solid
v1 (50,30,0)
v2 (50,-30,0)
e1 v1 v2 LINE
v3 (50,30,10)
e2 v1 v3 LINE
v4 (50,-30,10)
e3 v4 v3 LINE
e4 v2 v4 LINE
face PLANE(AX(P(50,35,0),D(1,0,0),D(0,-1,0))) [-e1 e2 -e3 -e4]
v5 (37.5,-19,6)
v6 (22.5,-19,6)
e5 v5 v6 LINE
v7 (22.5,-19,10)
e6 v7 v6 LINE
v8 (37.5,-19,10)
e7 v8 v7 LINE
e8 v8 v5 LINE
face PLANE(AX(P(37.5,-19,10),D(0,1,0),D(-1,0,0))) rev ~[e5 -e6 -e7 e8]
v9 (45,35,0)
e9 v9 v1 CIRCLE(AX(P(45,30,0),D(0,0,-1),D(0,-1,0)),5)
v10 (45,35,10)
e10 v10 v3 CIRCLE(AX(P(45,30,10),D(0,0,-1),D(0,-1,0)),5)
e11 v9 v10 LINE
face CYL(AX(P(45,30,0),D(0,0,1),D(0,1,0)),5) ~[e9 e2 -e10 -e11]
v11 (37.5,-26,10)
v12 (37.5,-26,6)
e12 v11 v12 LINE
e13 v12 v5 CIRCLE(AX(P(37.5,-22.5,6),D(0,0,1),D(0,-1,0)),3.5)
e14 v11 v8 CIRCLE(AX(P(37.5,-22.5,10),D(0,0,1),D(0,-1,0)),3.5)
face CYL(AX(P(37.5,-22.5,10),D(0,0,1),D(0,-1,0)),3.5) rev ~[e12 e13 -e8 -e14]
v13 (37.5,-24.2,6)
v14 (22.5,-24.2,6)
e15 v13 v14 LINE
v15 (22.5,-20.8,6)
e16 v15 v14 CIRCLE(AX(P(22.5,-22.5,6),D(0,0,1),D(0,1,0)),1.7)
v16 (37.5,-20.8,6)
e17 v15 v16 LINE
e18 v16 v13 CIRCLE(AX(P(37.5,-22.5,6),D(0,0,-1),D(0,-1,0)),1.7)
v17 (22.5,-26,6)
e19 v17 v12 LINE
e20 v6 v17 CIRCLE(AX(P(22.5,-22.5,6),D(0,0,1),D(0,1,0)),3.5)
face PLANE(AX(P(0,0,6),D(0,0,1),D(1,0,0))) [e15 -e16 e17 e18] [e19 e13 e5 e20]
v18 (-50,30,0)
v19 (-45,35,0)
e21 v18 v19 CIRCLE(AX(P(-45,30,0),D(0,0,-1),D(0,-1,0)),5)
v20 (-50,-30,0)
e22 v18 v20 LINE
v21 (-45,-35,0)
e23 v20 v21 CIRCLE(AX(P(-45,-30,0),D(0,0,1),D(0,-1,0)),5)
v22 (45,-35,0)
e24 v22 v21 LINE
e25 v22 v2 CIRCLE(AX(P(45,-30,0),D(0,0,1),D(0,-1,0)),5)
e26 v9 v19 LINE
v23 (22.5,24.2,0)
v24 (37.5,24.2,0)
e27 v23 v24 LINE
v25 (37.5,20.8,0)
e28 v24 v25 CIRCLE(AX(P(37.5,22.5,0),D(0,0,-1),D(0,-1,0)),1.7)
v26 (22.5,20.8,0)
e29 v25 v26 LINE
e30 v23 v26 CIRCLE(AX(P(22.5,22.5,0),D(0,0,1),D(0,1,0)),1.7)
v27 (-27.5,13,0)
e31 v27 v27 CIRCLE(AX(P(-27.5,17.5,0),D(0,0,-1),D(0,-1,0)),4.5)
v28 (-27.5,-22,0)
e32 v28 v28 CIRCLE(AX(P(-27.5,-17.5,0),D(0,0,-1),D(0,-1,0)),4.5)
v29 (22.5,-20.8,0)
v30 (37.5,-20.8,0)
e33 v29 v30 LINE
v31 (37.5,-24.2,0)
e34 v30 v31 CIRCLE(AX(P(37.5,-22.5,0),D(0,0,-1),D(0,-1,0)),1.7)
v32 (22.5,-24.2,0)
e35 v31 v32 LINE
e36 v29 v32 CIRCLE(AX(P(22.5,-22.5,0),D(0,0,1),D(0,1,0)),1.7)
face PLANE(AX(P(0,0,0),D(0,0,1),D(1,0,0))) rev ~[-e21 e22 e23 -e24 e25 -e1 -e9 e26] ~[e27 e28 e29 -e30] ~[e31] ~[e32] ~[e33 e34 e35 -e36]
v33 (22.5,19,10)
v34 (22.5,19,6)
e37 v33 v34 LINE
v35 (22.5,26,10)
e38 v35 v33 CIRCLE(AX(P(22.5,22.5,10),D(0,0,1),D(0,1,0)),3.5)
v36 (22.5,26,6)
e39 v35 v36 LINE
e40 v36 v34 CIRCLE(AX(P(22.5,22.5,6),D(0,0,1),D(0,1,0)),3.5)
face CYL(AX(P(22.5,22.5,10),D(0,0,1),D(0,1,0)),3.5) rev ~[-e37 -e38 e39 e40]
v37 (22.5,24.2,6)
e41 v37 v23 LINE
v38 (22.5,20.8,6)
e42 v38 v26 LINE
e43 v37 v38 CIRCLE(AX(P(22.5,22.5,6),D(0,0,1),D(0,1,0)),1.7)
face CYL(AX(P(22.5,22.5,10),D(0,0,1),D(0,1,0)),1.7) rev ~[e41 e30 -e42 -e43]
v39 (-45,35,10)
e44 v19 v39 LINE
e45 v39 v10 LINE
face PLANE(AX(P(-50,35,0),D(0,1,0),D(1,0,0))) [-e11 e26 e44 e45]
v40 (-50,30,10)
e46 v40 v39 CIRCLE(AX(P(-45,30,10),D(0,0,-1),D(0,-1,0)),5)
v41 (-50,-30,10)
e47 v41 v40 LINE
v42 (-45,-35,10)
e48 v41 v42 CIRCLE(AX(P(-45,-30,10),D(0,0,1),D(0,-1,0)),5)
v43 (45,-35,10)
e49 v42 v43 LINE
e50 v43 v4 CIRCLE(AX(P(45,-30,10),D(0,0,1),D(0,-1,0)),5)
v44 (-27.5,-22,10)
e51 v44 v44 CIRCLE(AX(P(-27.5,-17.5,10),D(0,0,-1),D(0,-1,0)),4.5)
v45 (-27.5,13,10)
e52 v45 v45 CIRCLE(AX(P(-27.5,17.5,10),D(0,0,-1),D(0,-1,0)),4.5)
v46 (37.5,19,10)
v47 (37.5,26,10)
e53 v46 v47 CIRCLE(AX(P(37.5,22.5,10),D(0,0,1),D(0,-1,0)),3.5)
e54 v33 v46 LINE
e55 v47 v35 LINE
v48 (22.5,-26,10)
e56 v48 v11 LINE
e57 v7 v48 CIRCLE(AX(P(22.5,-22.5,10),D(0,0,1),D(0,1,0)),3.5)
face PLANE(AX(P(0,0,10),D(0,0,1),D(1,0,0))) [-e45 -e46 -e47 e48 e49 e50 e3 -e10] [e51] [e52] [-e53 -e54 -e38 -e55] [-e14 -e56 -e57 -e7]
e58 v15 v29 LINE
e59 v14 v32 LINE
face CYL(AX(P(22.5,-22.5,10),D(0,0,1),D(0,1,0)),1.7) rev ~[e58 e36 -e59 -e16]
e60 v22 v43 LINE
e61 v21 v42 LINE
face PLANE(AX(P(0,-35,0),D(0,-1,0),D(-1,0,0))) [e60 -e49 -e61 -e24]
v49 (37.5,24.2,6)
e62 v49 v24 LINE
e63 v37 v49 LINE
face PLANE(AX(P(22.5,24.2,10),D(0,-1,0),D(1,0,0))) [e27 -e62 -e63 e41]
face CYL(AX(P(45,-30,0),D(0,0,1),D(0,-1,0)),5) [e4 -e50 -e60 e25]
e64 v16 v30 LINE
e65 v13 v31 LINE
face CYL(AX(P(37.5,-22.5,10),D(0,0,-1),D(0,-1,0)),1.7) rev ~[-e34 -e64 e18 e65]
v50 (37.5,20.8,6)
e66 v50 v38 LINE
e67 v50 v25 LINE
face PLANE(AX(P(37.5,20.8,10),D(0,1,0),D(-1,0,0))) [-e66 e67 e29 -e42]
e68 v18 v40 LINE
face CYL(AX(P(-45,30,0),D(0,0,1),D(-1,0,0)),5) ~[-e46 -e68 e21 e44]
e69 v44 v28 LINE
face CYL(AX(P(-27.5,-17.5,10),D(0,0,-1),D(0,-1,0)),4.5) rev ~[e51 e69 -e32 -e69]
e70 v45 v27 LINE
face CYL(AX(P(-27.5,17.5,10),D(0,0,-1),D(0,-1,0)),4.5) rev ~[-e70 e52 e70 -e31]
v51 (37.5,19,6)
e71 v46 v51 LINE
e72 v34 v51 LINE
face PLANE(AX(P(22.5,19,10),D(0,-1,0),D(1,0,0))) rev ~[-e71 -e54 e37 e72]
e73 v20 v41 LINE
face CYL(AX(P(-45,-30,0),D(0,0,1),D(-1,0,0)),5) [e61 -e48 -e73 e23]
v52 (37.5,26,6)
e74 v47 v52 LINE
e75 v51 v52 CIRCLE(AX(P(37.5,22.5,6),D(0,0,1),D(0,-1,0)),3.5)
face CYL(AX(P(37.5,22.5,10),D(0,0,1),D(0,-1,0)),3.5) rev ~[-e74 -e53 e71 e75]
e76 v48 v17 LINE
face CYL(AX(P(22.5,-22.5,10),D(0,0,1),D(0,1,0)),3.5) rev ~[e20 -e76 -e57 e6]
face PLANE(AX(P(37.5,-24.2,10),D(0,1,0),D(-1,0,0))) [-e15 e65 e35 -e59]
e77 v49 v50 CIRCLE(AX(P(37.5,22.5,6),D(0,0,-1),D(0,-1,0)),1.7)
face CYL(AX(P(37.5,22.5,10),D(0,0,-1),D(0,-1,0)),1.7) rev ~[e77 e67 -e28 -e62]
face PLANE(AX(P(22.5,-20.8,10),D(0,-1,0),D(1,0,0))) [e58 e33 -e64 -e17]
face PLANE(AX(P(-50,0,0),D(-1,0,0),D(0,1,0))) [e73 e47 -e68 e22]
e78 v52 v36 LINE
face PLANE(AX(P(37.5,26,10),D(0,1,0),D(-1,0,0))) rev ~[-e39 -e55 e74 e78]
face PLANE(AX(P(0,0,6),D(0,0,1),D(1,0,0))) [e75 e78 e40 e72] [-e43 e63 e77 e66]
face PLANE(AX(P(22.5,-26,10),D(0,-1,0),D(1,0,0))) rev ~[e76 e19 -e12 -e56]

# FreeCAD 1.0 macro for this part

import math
import FreeCAD as App
import Part
import Sketcher


def edges_at(feature, points):
    """Names of the edges that pass closest to the given points."""
    edges = feature.Shape.Edges
    near = lambda p: min(range(len(edges)), key=lambda i: edges[i].distToShape(Part.Vertex(*p))[0])
    return sorted({f"Edge{near(p) + 1}" for p in points})

doc = App.newDocument("Part")
body = doc.addObject("PartDesign::Body", "Body")

sketch1 = doc.addObject("Sketcher::SketchObject", "Sketch")
body.addObject(sketch1)
sketch1.AttachmentSupport = (doc.XY_Plane, [""])
sketch1.MapMode = "FlatFace"
sketch1.addGeometry([
    Part.LineSegment(App.Vector(-50, 35, 0), App.Vector(-50, -35, 0)),
    Part.LineSegment(App.Vector(-50, -35, 0), App.Vector(50, -35, 0)),
    Part.LineSegment(App.Vector(50, -35, 0), App.Vector(50, 35, 0)),
    Part.LineSegment(App.Vector(50, 35, 0), App.Vector(-50, 35, 0)),
], False)
sketch1.addConstraint([
    Sketcher.Constraint("Coincident", 0, 2, 1, 1),
    Sketcher.Constraint("Coincident", 1, 2, 2, 1),
    Sketcher.Constraint("Coincident", 2, 2, 3, 1),
    Sketcher.Constraint("Coincident", 3, 2, 0, 1),
    Sketcher.Constraint("Vertical", 0),
    Sketcher.Constraint("Horizontal", 1),
    Sketcher.Constraint("Vertical", 2),
    Sketcher.Constraint("Horizontal", 3),
    Sketcher.Constraint("Symmetric", 0, 2, 2, 2, -1, 1),
    Sketcher.Constraint("DistanceX", 1, 1, 1, 2, 100.0),
    Sketcher.Constraint("DistanceY", 0, 2, 0, 1, 70.0),
])
pad1 = doc.addObject("PartDesign::Pad", "Pad")
body.addObject(pad1)
pad1.Profile = sketch1
pad1.Length = 10
doc.recompute()

fillet = doc.addObject("PartDesign::Fillet", "Fillet")
body.addObject(fillet)
fillet.Base = (pad1, edges_at(pad1, [
    (50, 35, 5),
    (50, -35, 5),
    (-50, -35, 5),
    (-50, 35, 5),
]))
fillet.Radius = 5

sketch2 = doc.addObject("Sketcher::SketchObject", "Sketch001")
body.addObject(sketch2)
sketch2.AttachmentSupport = (doc.XY_Plane, [""])
sketch2.MapMode = "FlatFace"
sketch2.AttachmentOffset = App.Placement(App.Vector(0, 0, 10), App.Rotation())
sketch2.addGeometry([
    Part.Circle(App.Vector(-27.5, 17.5, 0), App.Vector(0, 0, 1), 4.5),
    Part.Circle(App.Vector(-27.5, -17.5, 0), App.Vector(0, 0, 1), 4.5),
], False)
sketch2.addConstraint([
    Sketcher.Constraint("Equal", 0, 1),
    Sketcher.Constraint("Symmetric", 0, 3, 1, 3, -1),
    Sketcher.Constraint("Diameter", 0, 9.0),
    Sketcher.Constraint("DistanceY", 1, 3, 0, 3, 35.0),
    Sketcher.Constraint("DistanceX", 0, 3, -1, 1, 27.5),
])
doc.recompute()
hole = doc.addObject("PartDesign::Hole", "Hole")
body.addObject(hole)
hole.Profile = sketch2
hole.ThreadType = "None"
hole.Diameter = 9
hole.DepthType = "ThroughAll"

sketch3 = doc.addObject("Sketcher::SketchObject", "Sketch002")
body.addObject(sketch3)
sketch3.AttachmentSupport = (doc.XY_Plane, [""])
sketch3.MapMode = "FlatFace"
sketch3.AttachmentOffset = App.Placement(App.Vector(0, 0, 10), App.Rotation())
sketch3.addGeometry([
    Part.Circle(App.Vector(37.5, 22.5, 0), App.Vector(0, 0, 1), 1.7),
    Part.Circle(App.Vector(37.5, -22.5, 0), App.Vector(0, 0, 1), 1.7),
], False)
sketch3.addConstraint([
    Sketcher.Constraint("Equal", 0, 1),
    Sketcher.Constraint("Symmetric", 0, 3, 1, 3, -1),
    Sketcher.Constraint("Diameter", 0, 3.4),
    Sketcher.Constraint("DistanceY", 1, 3, 0, 3, 45.0),
    Sketcher.Constraint("DistanceX", -1, 1, 0, 3, 37.5),
])
doc.recompute()
hole2 = doc.addObject("PartDesign::Hole", "Hole001")
body.addObject(hole2)
hole2.Profile = sketch3
hole2.ThreadType = "None"
hole2.Diameter = 3.4
hole2.DepthType = "ThroughAll"

sketch4 = doc.addObject("Sketcher::SketchObject", "Sketch003")
body.addObject(sketch4)
sketch4.AttachmentSupport = (doc.XY_Plane, [""])
sketch4.MapMode = "FlatFace"
sketch4.AttachmentOffset = App.Placement(App.Vector(0, 0, 10), App.Rotation())
sketch4.addGeometry([
    Part.ArcOfCircle(Part.Circle(App.Vector(37.5, 22.5, 0), App.Vector(0, 0, 1), 3.5), math.radians(-90), math.radians(90)),
    Part.LineSegment(App.Vector(37.5, 26, 0), App.Vector(22.5, 26, 0)),
    Part.ArcOfCircle(Part.Circle(App.Vector(22.5, 22.5, 0), App.Vector(0, 0, 1), 3.5), math.radians(90), math.radians(270)),
    Part.LineSegment(App.Vector(22.5, 19, 0), App.Vector(37.5, 19, 0)),
    Part.ArcOfCircle(Part.Circle(App.Vector(37.5, -22.5, 0), App.Vector(0, 0, 1), 3.5), math.radians(-90), math.radians(90)),
    Part.LineSegment(App.Vector(37.5, -19, 0), App.Vector(22.5, -19, 0)),
    Part.ArcOfCircle(Part.Circle(App.Vector(22.5, -22.5, 0), App.Vector(0, 0, 1), 3.5), math.radians(90), math.radians(270)),
    Part.LineSegment(App.Vector(22.5, -26, 0), App.Vector(37.5, -26, 0)),
], False)
sketch4.addConstraint([
    Sketcher.Constraint("Tangent", 0, 2, 1, 1),
    Sketcher.Constraint("Tangent", 1, 2, 2, 1),
    Sketcher.Constraint("Tangent", 2, 2, 3, 1),
    Sketcher.Constraint("Tangent", 3, 2, 0, 1),
    Sketcher.Constraint("Tangent", 4, 2, 5, 1),
    Sketcher.Constraint("Tangent", 5, 2, 6, 1),
    Sketcher.Constraint("Tangent", 6, 2, 7, 1),
    Sketcher.Constraint("Tangent", 7, 2, 4, 1),
    Sketcher.Constraint("Horizontal", 1),
    Sketcher.Constraint("Horizontal", 3),
    Sketcher.Constraint("Horizontal", 5),
    Sketcher.Constraint("Horizontal", 7),
    Sketcher.Constraint("Equal", 2, 4),
    Sketcher.Constraint("Symmetric", 0, 3, 4, 3, -1),
    Sketcher.Constraint("Vertical", 2, 3, 6, 3),
    Sketcher.Constraint("Radius", 0, 3.5),
    Sketcher.Constraint("DistanceX", 1, 2, 1, 1, 15.0),
    Sketcher.Constraint("DistanceY", 4, 3, 0, 3, 45.0),
    Sketcher.Constraint("DistanceX", -1, 1, 2, 3, 22.5),
])
pocket1 = doc.addObject("PartDesign::Pocket", "Pocket")
body.addObject(pocket1)
pocket1.Profile = sketch4
pocket1.Length = 4

sketch5 = doc.addObject("Sketcher::SketchObject", "Sketch004")
body.addObject(sketch5)
sketch5.AttachmentSupport = (doc.XY_Plane, [""])
sketch5.MapMode = "FlatFace"
sketch5.AttachmentOffset = App.Placement(App.Vector(0, 0, 10), App.Rotation())
sketch5.addGeometry([
    Part.ArcOfCircle(Part.Circle(App.Vector(37.5, 22.5, 0), App.Vector(0, 0, 1), 1.7), math.radians(-90), math.radians(90)),
    Part.LineSegment(App.Vector(37.5, 24.2, 0), App.Vector(22.5, 24.2, 0)),
    Part.ArcOfCircle(Part.Circle(App.Vector(22.5, 22.5, 0), App.Vector(0, 0, 1), 1.7), math.radians(90), math.radians(270)),
    Part.LineSegment(App.Vector(22.5, 20.8, 0), App.Vector(37.5, 20.8, 0)),
    Part.ArcOfCircle(Part.Circle(App.Vector(37.5, -22.5, 0), App.Vector(0, 0, 1), 1.7), math.radians(-90), math.radians(90)),
    Part.LineSegment(App.Vector(37.5, -20.8, 0), App.Vector(22.5, -20.8, 0)),
    Part.ArcOfCircle(Part.Circle(App.Vector(22.5, -22.5, 0), App.Vector(0, 0, 1), 1.7), math.radians(90), math.radians(270)),
    Part.LineSegment(App.Vector(22.5, -24.2, 0), App.Vector(37.5, -24.2, 0)),
], False)
sketch5.addConstraint([
    Sketcher.Constraint("Tangent", 0, 2, 1, 1),
    Sketcher.Constraint("Tangent", 1, 2, 2, 1),
    Sketcher.Constraint("Tangent", 2, 2, 3, 1),
    Sketcher.Constraint("Tangent", 3, 2, 0, 1),
    Sketcher.Constraint("Tangent", 4, 2, 5, 1),
    Sketcher.Constraint("Tangent", 5, 2, 6, 1),
    Sketcher.Constraint("Tangent", 6, 2, 7, 1),
    Sketcher.Constraint("Tangent", 7, 2, 4, 1),
    Sketcher.Constraint("Horizontal", 1),
    Sketcher.Constraint("Horizontal", 3),
    Sketcher.Constraint("Horizontal", 5),
    Sketcher.Constraint("Horizontal", 7),
    Sketcher.Constraint("Equal", 2, 4),
    Sketcher.Constraint("Symmetric", 0, 3, 4, 3, -1),
    Sketcher.Constraint("Vertical", 2, 3, 6, 3),
    Sketcher.Constraint("Radius", 0, 1.7),
    Sketcher.Constraint("DistanceX", 1, 2, 1, 1, 15.0),
    Sketcher.Constraint("DistanceY", 4, 3, 0, 3, 45.0),
    Sketcher.Constraint("DistanceX", -1, 1, 0, 3, 37.5),
])
pocket2 = doc.addObject("PartDesign::Pocket", "Pocket001")
body.addObject(pocket2)
pocket2.Profile = sketch5
pocket2.Type = "ThroughAll"

doc.recompute()
